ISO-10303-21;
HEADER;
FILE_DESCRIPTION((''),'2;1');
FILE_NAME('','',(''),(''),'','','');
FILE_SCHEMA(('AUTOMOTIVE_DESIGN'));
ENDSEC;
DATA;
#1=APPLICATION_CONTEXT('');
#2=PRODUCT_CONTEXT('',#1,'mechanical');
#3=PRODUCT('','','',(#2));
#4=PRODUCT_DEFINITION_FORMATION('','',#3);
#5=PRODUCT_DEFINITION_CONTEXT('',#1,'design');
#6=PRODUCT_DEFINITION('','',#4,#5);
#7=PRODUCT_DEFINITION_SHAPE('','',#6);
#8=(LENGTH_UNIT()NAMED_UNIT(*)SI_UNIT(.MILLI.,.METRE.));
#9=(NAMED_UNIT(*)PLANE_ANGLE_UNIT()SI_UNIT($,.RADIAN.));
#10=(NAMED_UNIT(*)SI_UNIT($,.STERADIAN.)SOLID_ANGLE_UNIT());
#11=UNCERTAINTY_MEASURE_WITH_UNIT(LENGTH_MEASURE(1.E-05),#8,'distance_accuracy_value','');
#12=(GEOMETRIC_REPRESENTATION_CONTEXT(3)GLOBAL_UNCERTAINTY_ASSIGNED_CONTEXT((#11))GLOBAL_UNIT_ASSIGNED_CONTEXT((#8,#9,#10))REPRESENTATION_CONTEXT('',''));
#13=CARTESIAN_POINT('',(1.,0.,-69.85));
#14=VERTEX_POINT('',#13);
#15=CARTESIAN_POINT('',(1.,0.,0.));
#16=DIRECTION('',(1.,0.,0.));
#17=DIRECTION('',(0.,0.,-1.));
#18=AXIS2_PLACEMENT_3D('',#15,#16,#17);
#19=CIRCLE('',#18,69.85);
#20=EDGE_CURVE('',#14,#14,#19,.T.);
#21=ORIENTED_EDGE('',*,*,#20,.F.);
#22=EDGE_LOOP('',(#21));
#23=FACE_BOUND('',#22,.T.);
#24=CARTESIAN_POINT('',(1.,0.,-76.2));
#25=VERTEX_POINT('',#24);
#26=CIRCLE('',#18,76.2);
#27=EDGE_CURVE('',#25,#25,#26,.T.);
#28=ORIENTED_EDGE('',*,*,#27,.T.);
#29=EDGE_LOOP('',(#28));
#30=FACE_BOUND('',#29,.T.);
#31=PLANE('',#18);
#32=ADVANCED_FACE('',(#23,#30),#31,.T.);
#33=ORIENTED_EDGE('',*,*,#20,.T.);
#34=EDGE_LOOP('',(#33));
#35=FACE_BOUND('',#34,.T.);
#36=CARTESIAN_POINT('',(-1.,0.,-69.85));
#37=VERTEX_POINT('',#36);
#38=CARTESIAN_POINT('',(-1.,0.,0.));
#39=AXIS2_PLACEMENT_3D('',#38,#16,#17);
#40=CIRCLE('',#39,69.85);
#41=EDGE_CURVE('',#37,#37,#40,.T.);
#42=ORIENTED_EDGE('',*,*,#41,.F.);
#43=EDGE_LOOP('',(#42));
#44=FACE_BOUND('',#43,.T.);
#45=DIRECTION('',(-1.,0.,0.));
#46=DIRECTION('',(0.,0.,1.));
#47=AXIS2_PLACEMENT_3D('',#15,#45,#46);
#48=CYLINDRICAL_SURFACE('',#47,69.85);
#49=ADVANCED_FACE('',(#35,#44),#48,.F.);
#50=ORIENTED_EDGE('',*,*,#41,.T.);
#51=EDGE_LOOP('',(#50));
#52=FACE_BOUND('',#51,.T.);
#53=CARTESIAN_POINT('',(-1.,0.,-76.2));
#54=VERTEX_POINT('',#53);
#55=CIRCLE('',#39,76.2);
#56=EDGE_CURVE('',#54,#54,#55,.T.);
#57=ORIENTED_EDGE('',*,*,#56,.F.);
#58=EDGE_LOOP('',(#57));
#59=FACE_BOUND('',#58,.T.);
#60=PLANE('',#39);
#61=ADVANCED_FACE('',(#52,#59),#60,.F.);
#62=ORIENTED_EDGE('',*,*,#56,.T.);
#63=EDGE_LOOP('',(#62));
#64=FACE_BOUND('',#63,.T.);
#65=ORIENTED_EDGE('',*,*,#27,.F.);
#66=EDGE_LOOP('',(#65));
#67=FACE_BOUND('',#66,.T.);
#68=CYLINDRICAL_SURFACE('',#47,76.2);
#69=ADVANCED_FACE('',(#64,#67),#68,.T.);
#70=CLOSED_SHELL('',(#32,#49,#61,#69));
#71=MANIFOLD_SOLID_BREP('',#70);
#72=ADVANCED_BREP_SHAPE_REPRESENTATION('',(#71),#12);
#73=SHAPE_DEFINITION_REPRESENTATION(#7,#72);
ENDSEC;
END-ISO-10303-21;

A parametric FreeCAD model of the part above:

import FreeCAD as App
import Part
import Sketcher
from FreeCAD import Vector
Q = App.Units.Quantity

doc = App.newDocument("Part")
body = doc.addObject("PartDesign::Body", "Body")

# Sketch on YZ plane
sketch1 = body.newObject("Sketcher::SketchObject", "Sketch")
sketch1.AttachmentSupport = (doc.getObject("YZ_Plane"), [""])
sketch1.MapMode = "FlatFace"
sketch1.addGeometry(Part.Circle(Vector(0, 0, 0), Vector(0, 0, 1), 76), False)
sketch1.addGeometry(Part.Circle(Vector(0, 0, 0), Vector(0, 0, 1), 70), False)
sketch1.addConstraint(Sketcher.Constraint("Coincident", 0, 3, -1, 1))
sketch1.addConstraint(Sketcher.Constraint("Coincident", 1, 3, -1, 1))
sketch1.addConstraint(Sketcher.Constraint("Diameter", 0, Q("6 in")))
sketch1.addConstraint(Sketcher.Constraint("Diameter", 1, Q("5.5 in")))
pad1 = body.newObject("PartDesign::Pad", "Pad")
pad1.Profile = sketch1
pad1.Length = 2
pad1.Midplane = True

doc.recompute()
